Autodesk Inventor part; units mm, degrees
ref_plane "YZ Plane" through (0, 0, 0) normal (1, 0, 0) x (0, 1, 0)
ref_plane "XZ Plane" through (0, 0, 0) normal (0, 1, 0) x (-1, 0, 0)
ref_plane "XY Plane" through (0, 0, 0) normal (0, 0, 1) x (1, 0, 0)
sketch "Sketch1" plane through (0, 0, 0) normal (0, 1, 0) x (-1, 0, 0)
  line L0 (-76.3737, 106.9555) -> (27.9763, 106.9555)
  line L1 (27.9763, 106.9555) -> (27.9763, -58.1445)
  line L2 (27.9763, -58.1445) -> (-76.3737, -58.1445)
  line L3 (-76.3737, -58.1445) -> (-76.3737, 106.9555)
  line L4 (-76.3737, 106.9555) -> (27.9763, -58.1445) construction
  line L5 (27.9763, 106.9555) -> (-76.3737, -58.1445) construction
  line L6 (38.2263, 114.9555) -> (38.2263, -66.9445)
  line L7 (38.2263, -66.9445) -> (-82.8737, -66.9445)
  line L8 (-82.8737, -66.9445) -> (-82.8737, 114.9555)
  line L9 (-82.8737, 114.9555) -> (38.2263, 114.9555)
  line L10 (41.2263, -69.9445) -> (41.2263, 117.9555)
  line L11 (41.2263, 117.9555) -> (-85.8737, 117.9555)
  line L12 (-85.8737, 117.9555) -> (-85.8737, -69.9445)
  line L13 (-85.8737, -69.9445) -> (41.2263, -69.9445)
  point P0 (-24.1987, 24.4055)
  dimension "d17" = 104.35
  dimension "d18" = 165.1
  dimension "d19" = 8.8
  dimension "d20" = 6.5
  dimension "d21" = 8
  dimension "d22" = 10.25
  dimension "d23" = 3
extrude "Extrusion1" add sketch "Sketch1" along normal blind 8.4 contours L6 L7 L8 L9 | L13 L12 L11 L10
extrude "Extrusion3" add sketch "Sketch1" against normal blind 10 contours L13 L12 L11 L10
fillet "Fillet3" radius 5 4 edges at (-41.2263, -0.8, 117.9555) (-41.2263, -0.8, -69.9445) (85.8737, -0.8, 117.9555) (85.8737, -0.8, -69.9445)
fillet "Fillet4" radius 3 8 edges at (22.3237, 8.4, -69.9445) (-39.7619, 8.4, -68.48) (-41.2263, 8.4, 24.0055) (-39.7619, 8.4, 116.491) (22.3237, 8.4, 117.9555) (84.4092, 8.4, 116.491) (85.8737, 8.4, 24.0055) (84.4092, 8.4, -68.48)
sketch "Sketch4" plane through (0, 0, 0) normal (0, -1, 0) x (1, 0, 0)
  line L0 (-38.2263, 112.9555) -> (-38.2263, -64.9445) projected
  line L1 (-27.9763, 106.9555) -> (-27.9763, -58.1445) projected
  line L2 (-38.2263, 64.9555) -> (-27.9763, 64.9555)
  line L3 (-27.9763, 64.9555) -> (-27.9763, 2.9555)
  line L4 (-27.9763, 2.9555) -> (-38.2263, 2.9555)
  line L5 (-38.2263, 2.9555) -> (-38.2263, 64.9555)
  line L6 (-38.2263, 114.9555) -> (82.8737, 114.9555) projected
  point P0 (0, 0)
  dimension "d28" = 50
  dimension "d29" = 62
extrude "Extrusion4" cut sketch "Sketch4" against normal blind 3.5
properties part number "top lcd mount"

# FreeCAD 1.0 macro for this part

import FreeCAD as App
import Part
import Sketcher

V = App.Vector
Q = App.Units.Quantity


def edges_at(feature, points):
    """Names of the edges that pass closest to the given points."""
    edges = feature.Shape.Edges
    near = lambda p: min(range(len(edges)), key=lambda i: edges[i].distToShape(Part.Vertex(*p))[0])
    return sorted({f"Edge{near(p) + 1}" for p in points})


def add_polygon(sketch, points):
    """Adds a closed chain of lines whose ends are joined by coincident constraints."""
    first, n = sketch.GeometryCount, len(points)
    for a, b in zip(points, points[1:] + points[:1]):
        sketch.addGeometry(Part.LineSegment(App.Vector(*a, 0), App.Vector(*b, 0)), False)
    for i in range(n):
        sketch.addConstraint(Sketcher.Constraint("Coincident", first + i, 2, first + (i + 1) % n, 1))

doc = App.newDocument("Part")
params = doc.addObject("Spreadsheet::Sheet", "Params")
for row, (alias, value) in enumerate([
    ("sketch1_height", "165.1 mm"),
    ("sketch1_width", "104.35 mm"),
    ("sketch1_width2", "127.1 mm"),
    ("sketch1_height2", "187.9 mm"),
    ("pad1_length", "8.4 mm"),
    ("sketch2_width", "127.1 mm"),
    ("sketch2_height", "187.9 mm"),
    ("pad2_length", "10 mm"),
    ("fillet_radius", "5 mm"),
    ("fillet2_radius", "3 mm"),
    ("sketch3_height", "62 mm"),
    ("sketch3_width", "10.25 mm"),
    ("pocket1_length", "3.5 mm"),
], start=1):
    params.set(f"A{row}", alias)
    params.set(f"B{row}", "=" + value)
    params.setAlias(f"B{row}", alias)

body = doc.addObject("PartDesign::Body", "Body")

# Sketch on XZ plane
sketch1 = doc.addObject("Sketcher::SketchObject", "Sketch")
body.addObject(sketch1)
sketch1.AttachmentSupport = (doc.XZ_Plane, [""])
sketch1.MapMode = "FlatFace"
add_polygon(sketch1, [(86, -70), (-41, -70), (-41, 118), (86, 118)])  # lines 0-3
add_polygon(sketch1, [(76, -58), (76, 107), (-28, 107), (-28, -58)])  # lines 4-7
sketch1.addConstraint([
    Sketcher.Constraint("Horizontal", 0),
    Sketcher.Constraint("Vertical", 1),
    Sketcher.Constraint("Horizontal", 2),
    Sketcher.Constraint("Vertical", 3),
    Sketcher.Constraint("Vertical", 4),
    Sketcher.Constraint("Horizontal", 5),
    Sketcher.Constraint("Vertical", 6),
    Sketcher.Constraint("Horizontal", 7),
    Sketcher.Constraint("DistanceY", 4, 1, 4, 2, Q("165.1 mm")),
    Sketcher.Constraint("DistanceX", 5, 2, 5, 1, Q("104.35 mm")),
    Sketcher.Constraint("DistanceX", 0, 2, 0, 1, Q("127.1 mm")),
    Sketcher.Constraint("DistanceY", 1, 1, 1, 2, Q("187.9 mm")),
    Sketcher.Constraint("DistanceY", 4, 2, 2, 2, Q("11 mm")),
    Sketcher.Constraint("DistanceX", 4, 2, 2, 2, Q("9.5 mm")),
    Sketcher.Constraint("DistanceX", 0, 2, -1, 1, Q("41.2263 mm")),
    Sketcher.Constraint("DistanceY", 0, 2, -1, 1, Q("69.9445 mm")),
])
sketch1.setExpression("Constraints[16]", "Params.sketch1_height")
sketch1.setExpression("Constraints[17]", "Params.sketch1_width")
sketch1.setExpression("Constraints[18]", "Params.sketch1_width2")
sketch1.setExpression("Constraints[19]", "Params.sketch1_height2")
pad1 = doc.addObject("PartDesign::Pad", "Pad")
body.addObject(pad1)
pad1.Profile = sketch1
pad1.setExpression("Length", "Params.pad1_length")
pad1.Reversed = True

# Sketch on XZ plane
sketch2 = doc.addObject("Sketcher::SketchObject", "Sketch001")
body.addObject(sketch2)
sketch2.AttachmentSupport = (doc.XZ_Plane, [""])
sketch2.MapMode = "FlatFace"
add_polygon(sketch2, [(86, -70), (-41, -70), (-41, 118), (86, 118)])  # lines 0-3
add_polygon(sketch2, [(83, 115), (-38, 115), (-38, -67), (83, -67)])  # lines 4-7
sketch2.addConstraint([
    Sketcher.Constraint("Horizontal", 0),
    Sketcher.Constraint("Vertical", 1),
    Sketcher.Constraint("Horizontal", 2),
    Sketcher.Constraint("Vertical", 3),
    Sketcher.Constraint("Horizontal", 4),
    Sketcher.Constraint("Vertical", 5),
    Sketcher.Constraint("Horizontal", 6),
    Sketcher.Constraint("Vertical", 7),
    Sketcher.Constraint("DistanceX", 1, 2, 4, 2, Q("3 mm")),
    Sketcher.Constraint("DistanceY", 4, 2, 1, 2, Q("3 mm")),
    Sketcher.Constraint("DistanceY", 0, 2, 5, 2, Q("3 mm")),
    Sketcher.Constraint("DistanceX", 6, 2, 3, 2, Q("3 mm")),
    Sketcher.Constraint("DistanceX", 0, 2, 0, 1, Q("127.1 mm")),
    Sketcher.Constraint("DistanceY", 1, 1, 1, 2, Q("187.9 mm")),
    Sketcher.Constraint("DistanceX", 0, 2, -1, 1, Q("41.2263 mm")),
    Sketcher.Constraint("DistanceY", 0, 2, -1, 1, Q("69.9445 mm")),
])
sketch2.setExpression("Constraints[20]", "Params.sketch2_width")
sketch2.setExpression("Constraints[21]", "Params.sketch2_height")
pad2 = doc.addObject("PartDesign::Pad", "Pad001")
body.addObject(pad2)
pad2.Profile = sketch2
pad2.setExpression("Length", "Params.pad2_length")
doc.recompute()

fillet = doc.addObject("PartDesign::Fillet", "Fillet")
body.addObject(fillet)
fillet.Base = (pad2, edges_at(pad2, [
    (-41.226, -0.8, 117.956),
    (-41.226, -0.8, -69.945),
    (85.874, -0.8, 117.956),
    (85.874, -0.8, -69.945),
]))
fillet.setExpression("Radius", "Params.fillet_radius")
doc.recompute()

fillet2 = doc.addObject("PartDesign::Fillet", "Fillet001")
body.addObject(fillet2)
fillet2.Base = (fillet, edges_at(fillet, [
    (22.324, 8.4, -69.945),
    (-39.762, 8.4, -68.48),
    (-41.226, 8.4, 24.006),
    (-39.762, 8.4, 116.491),
    (22.324, 8.4, 117.956),
    (84.409, 8.4, 116.491),
    (85.874, 8.4, 24.006),
    (84.409, 8.4, -68.48),
]))
fillet2.setExpression("Radius", "Params.fillet2_radius")

# Sketch on XZ plane
sketch3 = doc.addObject("Sketcher::SketchObject", "Sketch002")
body.addObject(sketch3)
sketch3.AttachmentSupport = (doc.XZ_Plane, [""])
sketch3.MapMode = "FlatFace"
add_polygon(sketch3, [(-28, 65), (-38, 65), (-38, 3), (-28, 3)])  # lines 0-3
sketch3.addConstraint([
    Sketcher.Constraint("Horizontal", 0),
    Sketcher.Constraint("Vertical", 1),
    Sketcher.Constraint("Horizontal", 2),
    Sketcher.Constraint("Vertical", 3),
    Sketcher.Constraint("DistanceY", 1, 2, 1, 1, Q("62 mm")),
    Sketcher.Constraint("DistanceX", 0, 2, 0, 1, Q("10.25 mm")),
    Sketcher.Constraint("DistanceX", 0, 2, -1, 1, Q("38.2263 mm")),
    Sketcher.Constraint("DistanceY", -1, 1, 0, 2, Q("64.9555 mm")),
])
sketch3.setExpression("Constraints[8]", "Params.sketch3_height")
sketch3.setExpression("Constraints[9]", "Params.sketch3_width")
pocket1 = doc.addObject("PartDesign::Pocket", "Pocket")
body.addObject(pocket1)
pocket1.Profile = sketch3
pocket1.setExpression("Length", "Params.pocket1_length")

doc.recompute()
